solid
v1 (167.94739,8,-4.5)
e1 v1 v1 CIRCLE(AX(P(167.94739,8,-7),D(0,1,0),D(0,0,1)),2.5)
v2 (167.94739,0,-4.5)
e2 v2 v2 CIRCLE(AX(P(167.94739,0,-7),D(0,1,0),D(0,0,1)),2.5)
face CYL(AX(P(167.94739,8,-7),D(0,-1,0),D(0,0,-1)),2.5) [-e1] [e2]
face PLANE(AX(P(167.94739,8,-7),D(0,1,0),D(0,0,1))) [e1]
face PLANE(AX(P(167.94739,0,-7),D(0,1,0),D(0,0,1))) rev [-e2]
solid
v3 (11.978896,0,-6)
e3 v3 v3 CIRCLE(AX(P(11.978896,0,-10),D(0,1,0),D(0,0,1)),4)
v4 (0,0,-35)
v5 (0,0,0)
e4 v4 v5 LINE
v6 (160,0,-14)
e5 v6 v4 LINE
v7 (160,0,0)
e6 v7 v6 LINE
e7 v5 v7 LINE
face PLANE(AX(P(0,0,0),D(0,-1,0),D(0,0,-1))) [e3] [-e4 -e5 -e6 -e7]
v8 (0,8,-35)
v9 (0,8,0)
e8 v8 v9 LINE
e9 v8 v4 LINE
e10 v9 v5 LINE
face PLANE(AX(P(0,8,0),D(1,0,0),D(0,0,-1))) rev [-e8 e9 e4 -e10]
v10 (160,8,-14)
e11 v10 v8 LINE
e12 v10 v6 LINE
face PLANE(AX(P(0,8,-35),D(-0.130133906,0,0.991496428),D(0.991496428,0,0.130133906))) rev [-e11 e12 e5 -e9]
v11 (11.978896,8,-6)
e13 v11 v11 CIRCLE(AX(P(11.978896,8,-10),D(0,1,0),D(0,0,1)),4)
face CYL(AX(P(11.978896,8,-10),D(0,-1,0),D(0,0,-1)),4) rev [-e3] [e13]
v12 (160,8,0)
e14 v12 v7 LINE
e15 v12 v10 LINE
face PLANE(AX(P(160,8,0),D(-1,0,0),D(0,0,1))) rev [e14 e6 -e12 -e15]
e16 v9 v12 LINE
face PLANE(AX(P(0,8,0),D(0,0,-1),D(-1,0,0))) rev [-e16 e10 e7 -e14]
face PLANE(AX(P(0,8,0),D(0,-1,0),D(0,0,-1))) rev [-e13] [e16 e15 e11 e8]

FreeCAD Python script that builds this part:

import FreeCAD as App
import Part
import Sketcher

V = App.Vector

doc = App.newDocument("Part")
params = doc.addObject("Spreadsheet::Sheet", "Params")
for row, (alias, value) in enumerate([
    ("sketch1_diameter", "5 mm"),
    ("pad1_length", "8 mm"),
    ("sketch2_diameter", "8 mm"),
    ("sketch2_width", "160 mm"),
    ("sketch2_height", "14 mm"),
    ("sketch2_height2", "35 mm"),
    ("pad2_length", "8 mm"),
], start=1):
    params.set(f"A{row}", alias)
    params.set(f"B{row}", "=" + value)
    params.setAlias(f"B{row}", alias)

body = doc.addObject("PartDesign::Body", "Body")

# Sketch on XZ plane
sketch1 = body.newObject("Sketcher::SketchObject", "Sketch")
sketch1.AttachmentSupport = (doc.getObject("XZ_Plane"), [""])
sketch1.MapMode = "FlatFace"
sketch1.addGeometry(Part.Circle(V(167.9, -7, 0), V(0, 0, 1), 2.5), False)
sketch1.addConstraint([
    Sketcher.Constraint("Diameter", 0, 5.0),
    Sketcher.Constraint("DistanceY", 0, 3, -1, 1, 7.0),
    Sketcher.Constraint("DistanceX", -1, 1, 0, 3, 167.94739),
])
sketch1.setExpression("Constraints[0]", "Params.sketch1_diameter")
pad1 = body.newObject("PartDesign::Pad", "Pad")
pad1.Profile = sketch1
pad1.setExpression("Length", "Params.pad1_length")
pad1.Reversed = True
body2 = doc.addObject("PartDesign::Body", "Body001")

# Sketch on XZ plane
sketch2 = body2.newObject("Sketcher::SketchObject", "Sketch001")
sketch2.AttachmentSupport = (doc.getObject("XZ_Plane001"), [""])
sketch2.MapMode = "FlatFace"
sketch2.addGeometry([
    Part.LineSegment(V(0, 0, 0), V(160, 0, 0)),  # 0
    Part.LineSegment(V(160, 0, 0), V(160, -14, 0)),  # 1
    Part.LineSegment(V(160, -14, 0), V(0, -35, 0)),  # 2
    Part.LineSegment(V(0, -35, 0), V(0, 0, 0)),  # 3
    Part.Circle(V(12, -10, 0), V(0, 0, 1), 4),  # 4
], False)
sketch2.addConstraint([
    Sketcher.Constraint("Coincident", 0, 2, 1, 1),
    Sketcher.Constraint("Coincident", 1, 2, 2, 1),
    Sketcher.Constraint("Coincident", 2, 2, 3, 1),
    Sketcher.Constraint("Coincident", 3, 2, 0, 1),
    Sketcher.Constraint("Horizontal", 0),
    Sketcher.Constraint("Vertical", 1),
    Sketcher.Constraint("Vertical", 3),
    Sketcher.Constraint("Coincident", 3, 2, -1, 1),
    Sketcher.Constraint("Diameter", 4, 8.0),
    Sketcher.Constraint("DistanceX", 0, 1, 0, 2, 160.0),
    Sketcher.Constraint("DistanceY", 1, 2, 1, 1, 14.0),
    Sketcher.Constraint("DistanceY", 3, 1, 3, 2, 35.0),
    Sketcher.Constraint("DistanceY", 4, 3, -1, 1, 10.0),
    Sketcher.Constraint("DistanceX", -1, 1, 4, 3, 11.978896),
])
sketch2.setExpression("Constraints[8]", "Params.sketch2_diameter")
sketch2.setExpression("Constraints[9]", "Params.sketch2_width")
sketch2.setExpression("Constraints[10]", "Params.sketch2_height")
sketch2.setExpression("Constraints[11]", "Params.sketch2_height2")
pad2 = body2.newObject("PartDesign::Pad", "Pad001")
pad2.Profile = sketch2
pad2.setExpression("Length", "Params.pad2_length")
pad2.Reversed = True

doc.recompute()
